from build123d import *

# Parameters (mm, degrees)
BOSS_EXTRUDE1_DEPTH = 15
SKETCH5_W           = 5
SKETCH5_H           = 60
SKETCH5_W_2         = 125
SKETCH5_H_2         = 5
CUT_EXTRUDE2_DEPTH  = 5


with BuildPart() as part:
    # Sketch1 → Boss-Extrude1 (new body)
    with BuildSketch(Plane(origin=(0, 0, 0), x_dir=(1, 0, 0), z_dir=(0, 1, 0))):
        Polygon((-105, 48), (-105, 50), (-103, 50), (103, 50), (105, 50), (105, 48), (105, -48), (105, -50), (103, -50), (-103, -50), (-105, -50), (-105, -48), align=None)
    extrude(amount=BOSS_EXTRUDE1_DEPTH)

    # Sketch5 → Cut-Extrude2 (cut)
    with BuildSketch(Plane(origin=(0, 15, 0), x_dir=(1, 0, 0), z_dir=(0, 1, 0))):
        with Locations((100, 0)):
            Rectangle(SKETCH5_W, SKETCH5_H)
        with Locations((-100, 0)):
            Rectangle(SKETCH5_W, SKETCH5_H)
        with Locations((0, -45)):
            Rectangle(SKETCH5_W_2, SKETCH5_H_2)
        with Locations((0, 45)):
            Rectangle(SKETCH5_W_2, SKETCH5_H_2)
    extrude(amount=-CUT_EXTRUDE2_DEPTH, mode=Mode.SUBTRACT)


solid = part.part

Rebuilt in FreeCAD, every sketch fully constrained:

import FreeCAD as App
import Part
import Sketcher
from FreeCAD import Vector
Q = App.Units.Quantity


def add_polygon(sketch, points):
    """Adds a closed chain of lines whose ends are joined by coincident constraints."""
    first, n = sketch.GeometryCount, len(points)
    for a, b in zip(points, points[1:] + points[:1]):
        sketch.addGeometry(Part.LineSegment(App.Vector(*a, 0), App.Vector(*b, 0)), False)
    for i in range(n):
        sketch.addConstraint(Sketcher.Constraint("Coincident", first + i, 2, first + (i + 1) % n, 1))

doc = App.newDocument("Part")
body = doc.addObject("PartDesign::Body", "Body")

sketch1 = body.newObject("Sketcher::SketchObject", "Sketch")
sketch1.AttachmentSupport = (doc.getObject("XZ_Plane"), [""])
sketch1.MapMode = "FlatFace"
add_polygon(sketch1, [(-105, -50), (-105, 50), (105, 50), (105, -50)])
sketch1.addConstraint([
    Sketcher.Constraint("Vertical", 0),
    Sketcher.Constraint("Horizontal", 1),
    Sketcher.Constraint("Vertical", 2),
    Sketcher.Constraint("Horizontal", 3),
    Sketcher.Constraint("Symmetric", 0, 2, 2, 2, -1, 1),
    Sketcher.Constraint("DistanceX", 1, 1, 1, 2, Q("210 mm")),
    Sketcher.Constraint("DistanceY", 0, 1, 0, 2, Q("100 mm")),
])
pad1 = body.newObject("PartDesign::Pad", "Pad")
pad1.Profile = sketch1
pad1.Length = 15
pad1.Reversed = True

sketch2 = body.newObject("Sketcher::SketchObject", "Sketch001")
sketch2.AttachmentSupport = (doc.getObject("XZ_Plane"), [""])
sketch2.MapMode = "FlatFace"
sketch2.AttachmentOffset = App.Placement(Vector(0, 0, -15), App.Rotation())
add_polygon(sketch2, [(97.5, -30), (97.5, 30), (102.5, 30), (102.5, -30)])
add_polygon(sketch2, [(-102.5, -30), (-102.5, 30), (-97.5, 30), (-97.5, -30)])
add_polygon(sketch2, [(-62.5, 42.5), (-62.5, 47.5), (62.5, 47.5), (62.5, 42.5)])
add_polygon(sketch2, [(-62.5, -47.5), (-62.5, -42.5), (62.5, -42.5), (62.5, -47.5)])
sketch2.addConstraint([
    Sketcher.Constraint("Vertical", 0),
    Sketcher.Constraint("Horizontal", 1),
    Sketcher.Constraint("Vertical", 2),
    Sketcher.Constraint("Horizontal", 3),
    Sketcher.Constraint("Vertical", 4),
    Sketcher.Constraint("Horizontal", 5),
    Sketcher.Constraint("Vertical", 6),
    Sketcher.Constraint("Horizontal", 7),
    Sketcher.Constraint("Vertical", 8),
    Sketcher.Constraint("Horizontal", 9),
    Sketcher.Constraint("Vertical", 10),
    Sketcher.Constraint("Horizontal", 11),
    Sketcher.Constraint("Vertical", 12),
    Sketcher.Constraint("Horizontal", 13),
    Sketcher.Constraint("Vertical", 14),
    Sketcher.Constraint("Horizontal", 15),
    Sketcher.Constraint("Symmetric", 2, 2, 4, 2, -1, 1),
    Sketcher.Constraint("Symmetric", 0, 2, 6, 2, -1, 1),
    Sketcher.Constraint("Symmetric", 10, 2, 12, 2, -1, 1),
    Sketcher.Constraint("Symmetric", 8, 2, 14, 2, -1, 1),
    Sketcher.Constraint("Horizontal", 1, 2, 4, 2),
    Sketcher.Constraint("Vertical", 11, 2, 12, 2),
    Sketcher.Constraint("Equal", 7, 8),
    Sketcher.Constraint("DistanceX", 1, 1, 1, 2, Q("5 mm")),
    Sketcher.Constraint("DistanceX", 9, 1, 9, 2, Q("125 mm")),
    Sketcher.Constraint("DistanceY", 0, 1, 0, 2, Q("60 mm")),
    Sketcher.Constraint("DistanceX", 4, 2, 0, 2, Q("200 mm")),
    Sketcher.Constraint("DistanceY", 12, 2, 11, 2, Q("85 mm")),
])
pocket1 = body.newObject("PartDesign::Pocket", "Pocket")
pocket1.Profile = sketch2
pocket1.Length = 5
pocket1.Reversed = True

doc.recompute()
